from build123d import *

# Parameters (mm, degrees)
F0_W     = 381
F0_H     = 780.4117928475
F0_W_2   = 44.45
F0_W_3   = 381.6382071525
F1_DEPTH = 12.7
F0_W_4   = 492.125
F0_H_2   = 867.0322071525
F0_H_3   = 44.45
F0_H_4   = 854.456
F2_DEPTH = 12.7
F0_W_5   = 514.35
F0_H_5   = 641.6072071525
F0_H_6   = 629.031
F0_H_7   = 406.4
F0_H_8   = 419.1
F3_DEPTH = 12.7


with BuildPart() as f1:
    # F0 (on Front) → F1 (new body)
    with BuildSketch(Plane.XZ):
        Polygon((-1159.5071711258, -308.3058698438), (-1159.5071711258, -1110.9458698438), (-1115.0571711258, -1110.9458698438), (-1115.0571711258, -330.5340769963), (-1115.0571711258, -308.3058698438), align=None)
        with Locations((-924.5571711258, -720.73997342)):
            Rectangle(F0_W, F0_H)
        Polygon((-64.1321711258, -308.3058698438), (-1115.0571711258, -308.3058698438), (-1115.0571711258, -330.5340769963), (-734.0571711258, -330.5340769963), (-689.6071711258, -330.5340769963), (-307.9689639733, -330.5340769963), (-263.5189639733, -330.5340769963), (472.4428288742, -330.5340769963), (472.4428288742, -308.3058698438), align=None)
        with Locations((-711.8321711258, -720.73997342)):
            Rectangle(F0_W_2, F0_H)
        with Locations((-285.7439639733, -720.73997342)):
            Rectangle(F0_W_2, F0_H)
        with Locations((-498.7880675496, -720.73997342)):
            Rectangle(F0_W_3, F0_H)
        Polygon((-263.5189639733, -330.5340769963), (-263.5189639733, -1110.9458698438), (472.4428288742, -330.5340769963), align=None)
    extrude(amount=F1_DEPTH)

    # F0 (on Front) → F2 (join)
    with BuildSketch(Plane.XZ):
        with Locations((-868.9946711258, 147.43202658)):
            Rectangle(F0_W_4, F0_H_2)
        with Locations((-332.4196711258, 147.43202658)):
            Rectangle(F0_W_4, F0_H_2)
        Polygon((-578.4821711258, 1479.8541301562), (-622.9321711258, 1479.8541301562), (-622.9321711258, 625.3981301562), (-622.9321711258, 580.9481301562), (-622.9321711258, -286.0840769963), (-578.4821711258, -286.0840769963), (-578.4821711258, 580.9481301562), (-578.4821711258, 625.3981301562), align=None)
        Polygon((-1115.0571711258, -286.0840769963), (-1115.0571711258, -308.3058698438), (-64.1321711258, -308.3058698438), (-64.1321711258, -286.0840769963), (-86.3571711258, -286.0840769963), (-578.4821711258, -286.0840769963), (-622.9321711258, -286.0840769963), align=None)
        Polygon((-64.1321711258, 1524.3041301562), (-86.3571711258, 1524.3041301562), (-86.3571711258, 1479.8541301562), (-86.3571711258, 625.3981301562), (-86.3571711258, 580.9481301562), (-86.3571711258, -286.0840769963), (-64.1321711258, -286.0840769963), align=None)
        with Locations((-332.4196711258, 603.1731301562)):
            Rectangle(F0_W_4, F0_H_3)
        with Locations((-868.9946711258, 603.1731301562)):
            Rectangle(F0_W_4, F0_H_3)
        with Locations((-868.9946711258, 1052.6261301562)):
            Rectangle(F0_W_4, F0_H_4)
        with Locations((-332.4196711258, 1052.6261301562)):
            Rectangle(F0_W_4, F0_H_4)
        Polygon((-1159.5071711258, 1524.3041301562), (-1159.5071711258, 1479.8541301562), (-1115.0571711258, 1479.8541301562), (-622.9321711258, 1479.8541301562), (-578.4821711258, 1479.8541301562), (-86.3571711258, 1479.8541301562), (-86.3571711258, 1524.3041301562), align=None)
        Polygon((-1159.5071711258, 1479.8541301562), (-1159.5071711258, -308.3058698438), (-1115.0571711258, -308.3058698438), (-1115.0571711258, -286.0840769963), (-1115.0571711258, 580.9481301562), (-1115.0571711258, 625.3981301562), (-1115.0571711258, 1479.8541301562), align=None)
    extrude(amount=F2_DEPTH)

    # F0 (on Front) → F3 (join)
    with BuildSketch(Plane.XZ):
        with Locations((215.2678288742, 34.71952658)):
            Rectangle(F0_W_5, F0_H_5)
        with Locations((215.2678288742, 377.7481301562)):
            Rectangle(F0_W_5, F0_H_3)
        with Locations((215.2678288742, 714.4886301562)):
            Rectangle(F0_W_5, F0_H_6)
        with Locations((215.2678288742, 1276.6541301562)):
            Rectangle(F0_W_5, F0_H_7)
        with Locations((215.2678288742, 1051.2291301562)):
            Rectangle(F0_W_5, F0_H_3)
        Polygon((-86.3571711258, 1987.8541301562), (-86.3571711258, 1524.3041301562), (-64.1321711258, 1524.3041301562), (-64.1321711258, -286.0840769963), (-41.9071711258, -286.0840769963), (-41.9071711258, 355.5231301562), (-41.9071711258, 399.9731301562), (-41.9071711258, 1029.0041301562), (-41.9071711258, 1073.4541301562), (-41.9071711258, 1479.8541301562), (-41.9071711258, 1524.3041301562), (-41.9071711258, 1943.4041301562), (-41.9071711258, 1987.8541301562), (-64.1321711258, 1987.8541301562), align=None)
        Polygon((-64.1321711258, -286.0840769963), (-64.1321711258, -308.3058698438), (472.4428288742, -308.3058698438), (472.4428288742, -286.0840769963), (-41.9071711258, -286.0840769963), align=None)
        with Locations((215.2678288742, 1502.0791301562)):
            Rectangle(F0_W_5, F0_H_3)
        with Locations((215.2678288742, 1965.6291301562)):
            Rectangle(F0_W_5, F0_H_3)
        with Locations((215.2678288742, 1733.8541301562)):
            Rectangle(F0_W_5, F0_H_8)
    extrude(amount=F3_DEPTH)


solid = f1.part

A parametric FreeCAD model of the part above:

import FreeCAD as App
import Part
import Sketcher
from FreeCAD import Vector
Q = App.Units.Quantity


def add_polygon(sketch, points):
    """Adds a closed chain of lines whose ends are joined by coincident constraints."""
    first, n = sketch.GeometryCount, len(points)
    for a, b in zip(points, points[1:] + points[:1]):
        sketch.addGeometry(Part.LineSegment(App.Vector(*a, 0), App.Vector(*b, 0)), False)
    for i in range(n):
        sketch.addConstraint(Sketcher.Constraint("Coincident", first + i, 2, first + (i + 1) % n, 1))

doc = App.newDocument("Part")
body = doc.addObject("PartDesign::Body", "Body")

# Sketch on XZ plane
sketch1 = body.newObject("Sketcher::SketchObject", "Sketch")
sketch1.AttachmentSupport = (doc.getObject("XZ_Plane"), [""])
sketch1.MapMode = "FlatFace"
add_polygon(sketch1, [(-1159.507171, -308.30587), (-1159.507171, -1110.94587), (-263.518964, -1110.94587), (472.442829, -330.534077), (472.442829, -308.30587)])  # lines 0-4
sketch1.addConstraint([
    Sketcher.Constraint("Vertical", 0),
    Sketcher.Constraint("Horizontal", 1),
    Sketcher.Constraint("Vertical", 3),
    Sketcher.Constraint("Horizontal", 4),
    Sketcher.Constraint("DistanceY", 0, 2, 0, 1, Q("31.6 in")),
    Sketcher.Constraint("DistanceX", 4, 2, 4, 1, Q("64.25 in")),
    Sketcher.Constraint("Distance", 2, 1072.698619),
    Sketcher.Constraint("DistanceX", 1, 1, 1, 2, 895.988207),
    Sketcher.Constraint("DistanceX", 0, 2, -1, 1, 1159.507171),
    Sketcher.Constraint("DistanceY", 0, 2, -1, 1, 1110.94587),
])
pad1 = body.newObject("PartDesign::Pad", "Pad")
pad1.Profile = sketch1
pad1.Length = Q("0.5 in")

# Sketch on XZ plane
sketch2 = body.newObject("Sketcher::SketchObject", "Sketch001")
sketch2.AttachmentSupport = (doc.getObject("XZ_Plane"), [""])
sketch2.MapMode = "FlatFace"
add_polygon(sketch2, [(-64.132171, -308.30587), (-64.132171, 1524.30413), (-1159.507171, 1524.30413), (-1159.507171, -308.30587)])  # lines 0-3
sketch2.addConstraint([
    Sketcher.Constraint("Vertical", 0),
    Sketcher.Constraint("Horizontal", 1),
    Sketcher.Constraint("Vertical", 2),
    Sketcher.Constraint("Horizontal", 3),
    Sketcher.Constraint("DistanceY", 0, 1, 0, 2, Q("72.15 in")),
    Sketcher.Constraint("DistanceX", 1, 2, 1, 1, Q("43.125 in")),
    Sketcher.Constraint("DistanceX", 0, 2, -1, 1, 64.132171),
    Sketcher.Constraint("DistanceY", -1, 1, 0, 2, 1524.30413),
])
pad2 = body.newObject("PartDesign::Pad", "Pad001")
pad2.Profile = sketch2
pad2.Length = Q("0.5 in")

# Sketch on XZ plane
sketch3 = body.newObject("Sketcher::SketchObject", "Sketch002")
sketch3.AttachmentSupport = (doc.getObject("XZ_Plane"), [""])
sketch3.MapMode = "FlatFace"
add_polygon(sketch3, [(472.442829, 1987.85413), (-86.357171, 1987.85413), (-86.357171, 1524.30413), (-64.132171, 1524.30413), (-64.132171, -308.30587), (472.442829, -308.30587)])  # lines 0-5
sketch3.addConstraint([
    Sketcher.Constraint("Horizontal", 0),
    Sketcher.Constraint("Vertical", 1),
    Sketcher.Constraint("Horizontal", 2),
    Sketcher.Constraint("Vertical", 3),
    Sketcher.Constraint("Horizontal", 4),
    Sketcher.Constraint("Vertical", 5),
    Sketcher.Constraint("DistanceX", 0, 2, 0, 1, Q("22 in")),
    Sketcher.Constraint("DistanceY", 5, 1, 5, 2, Q("90.4 in")),
    Sketcher.Constraint("DistanceY", 1, 2, 1, 1, Q("18.25 in")),
    Sketcher.Constraint("DistanceX", 2, 1, 2, 2, Q("0.875 in")),
    Sketcher.Constraint("DistanceX", 0, 2, -1, 1, 86.357171),
    Sketcher.Constraint("DistanceY", -1, 1, 0, 2, 1987.85413),
])
pad3 = body.newObject("PartDesign::Pad", "Pad002")
pad3.Profile = sketch3
pad3.Length = Q("0.5 in")

doc.recompute()
